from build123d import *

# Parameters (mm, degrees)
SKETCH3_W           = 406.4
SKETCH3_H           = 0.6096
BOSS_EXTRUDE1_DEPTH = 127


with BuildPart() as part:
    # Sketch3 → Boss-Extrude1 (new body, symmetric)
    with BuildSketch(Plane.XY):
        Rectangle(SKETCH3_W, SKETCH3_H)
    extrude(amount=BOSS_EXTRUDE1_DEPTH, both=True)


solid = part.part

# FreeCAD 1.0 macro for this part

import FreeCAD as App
import Part
import Sketcher

V = App.Vector
Q = App.Units.Quantity


def add_polygon(sketch, points):
    """Adds a closed chain of lines whose ends are joined by coincident constraints."""
    first, n = sketch.GeometryCount, len(points)
    for a, b in zip(points, points[1:] + points[:1]):
        sketch.addGeometry(Part.LineSegment(App.Vector(*a, 0), App.Vector(*b, 0)), False)
    for i in range(n):
        sketch.addConstraint(Sketcher.Constraint("Coincident", first + i, 2, first + (i + 1) % n, 1))

doc = App.newDocument("Part")
body = doc.addObject("PartDesign::Body", "Body")

# Sketch on XY plane
sketch1 = body.newObject("Sketcher::SketchObject", "Sketch")
sketch1.AttachmentSupport = (doc.getObject("XY_Plane"), [""])
sketch1.MapMode = "FlatFace"
add_polygon(sketch1, [(-203.2, 0.3), (-203.2, -0.3), (203.2, -0.3), (203.2, 0.3)])  # lines 0-3
sketch1.addConstraint([
    Sketcher.Constraint("Vertical", 0),
    Sketcher.Constraint("Horizontal", 1),
    Sketcher.Constraint("Vertical", 2),
    Sketcher.Constraint("Horizontal", 3),
    Sketcher.Constraint("Symmetric", 0, 2, 2, 2, -1, 1),
    Sketcher.Constraint("DistanceX", 1, 1, 1, 2, Q("16 in")),
    Sketcher.Constraint("DistanceY", 0, 2, 0, 1, Q("0.024 in")),
])
pad1 = body.newObject("PartDesign::Pad", "Pad")
pad1.Profile = sketch1
pad1.Length = Q("10 in")
pad1.Midplane = True

doc.recompute()
